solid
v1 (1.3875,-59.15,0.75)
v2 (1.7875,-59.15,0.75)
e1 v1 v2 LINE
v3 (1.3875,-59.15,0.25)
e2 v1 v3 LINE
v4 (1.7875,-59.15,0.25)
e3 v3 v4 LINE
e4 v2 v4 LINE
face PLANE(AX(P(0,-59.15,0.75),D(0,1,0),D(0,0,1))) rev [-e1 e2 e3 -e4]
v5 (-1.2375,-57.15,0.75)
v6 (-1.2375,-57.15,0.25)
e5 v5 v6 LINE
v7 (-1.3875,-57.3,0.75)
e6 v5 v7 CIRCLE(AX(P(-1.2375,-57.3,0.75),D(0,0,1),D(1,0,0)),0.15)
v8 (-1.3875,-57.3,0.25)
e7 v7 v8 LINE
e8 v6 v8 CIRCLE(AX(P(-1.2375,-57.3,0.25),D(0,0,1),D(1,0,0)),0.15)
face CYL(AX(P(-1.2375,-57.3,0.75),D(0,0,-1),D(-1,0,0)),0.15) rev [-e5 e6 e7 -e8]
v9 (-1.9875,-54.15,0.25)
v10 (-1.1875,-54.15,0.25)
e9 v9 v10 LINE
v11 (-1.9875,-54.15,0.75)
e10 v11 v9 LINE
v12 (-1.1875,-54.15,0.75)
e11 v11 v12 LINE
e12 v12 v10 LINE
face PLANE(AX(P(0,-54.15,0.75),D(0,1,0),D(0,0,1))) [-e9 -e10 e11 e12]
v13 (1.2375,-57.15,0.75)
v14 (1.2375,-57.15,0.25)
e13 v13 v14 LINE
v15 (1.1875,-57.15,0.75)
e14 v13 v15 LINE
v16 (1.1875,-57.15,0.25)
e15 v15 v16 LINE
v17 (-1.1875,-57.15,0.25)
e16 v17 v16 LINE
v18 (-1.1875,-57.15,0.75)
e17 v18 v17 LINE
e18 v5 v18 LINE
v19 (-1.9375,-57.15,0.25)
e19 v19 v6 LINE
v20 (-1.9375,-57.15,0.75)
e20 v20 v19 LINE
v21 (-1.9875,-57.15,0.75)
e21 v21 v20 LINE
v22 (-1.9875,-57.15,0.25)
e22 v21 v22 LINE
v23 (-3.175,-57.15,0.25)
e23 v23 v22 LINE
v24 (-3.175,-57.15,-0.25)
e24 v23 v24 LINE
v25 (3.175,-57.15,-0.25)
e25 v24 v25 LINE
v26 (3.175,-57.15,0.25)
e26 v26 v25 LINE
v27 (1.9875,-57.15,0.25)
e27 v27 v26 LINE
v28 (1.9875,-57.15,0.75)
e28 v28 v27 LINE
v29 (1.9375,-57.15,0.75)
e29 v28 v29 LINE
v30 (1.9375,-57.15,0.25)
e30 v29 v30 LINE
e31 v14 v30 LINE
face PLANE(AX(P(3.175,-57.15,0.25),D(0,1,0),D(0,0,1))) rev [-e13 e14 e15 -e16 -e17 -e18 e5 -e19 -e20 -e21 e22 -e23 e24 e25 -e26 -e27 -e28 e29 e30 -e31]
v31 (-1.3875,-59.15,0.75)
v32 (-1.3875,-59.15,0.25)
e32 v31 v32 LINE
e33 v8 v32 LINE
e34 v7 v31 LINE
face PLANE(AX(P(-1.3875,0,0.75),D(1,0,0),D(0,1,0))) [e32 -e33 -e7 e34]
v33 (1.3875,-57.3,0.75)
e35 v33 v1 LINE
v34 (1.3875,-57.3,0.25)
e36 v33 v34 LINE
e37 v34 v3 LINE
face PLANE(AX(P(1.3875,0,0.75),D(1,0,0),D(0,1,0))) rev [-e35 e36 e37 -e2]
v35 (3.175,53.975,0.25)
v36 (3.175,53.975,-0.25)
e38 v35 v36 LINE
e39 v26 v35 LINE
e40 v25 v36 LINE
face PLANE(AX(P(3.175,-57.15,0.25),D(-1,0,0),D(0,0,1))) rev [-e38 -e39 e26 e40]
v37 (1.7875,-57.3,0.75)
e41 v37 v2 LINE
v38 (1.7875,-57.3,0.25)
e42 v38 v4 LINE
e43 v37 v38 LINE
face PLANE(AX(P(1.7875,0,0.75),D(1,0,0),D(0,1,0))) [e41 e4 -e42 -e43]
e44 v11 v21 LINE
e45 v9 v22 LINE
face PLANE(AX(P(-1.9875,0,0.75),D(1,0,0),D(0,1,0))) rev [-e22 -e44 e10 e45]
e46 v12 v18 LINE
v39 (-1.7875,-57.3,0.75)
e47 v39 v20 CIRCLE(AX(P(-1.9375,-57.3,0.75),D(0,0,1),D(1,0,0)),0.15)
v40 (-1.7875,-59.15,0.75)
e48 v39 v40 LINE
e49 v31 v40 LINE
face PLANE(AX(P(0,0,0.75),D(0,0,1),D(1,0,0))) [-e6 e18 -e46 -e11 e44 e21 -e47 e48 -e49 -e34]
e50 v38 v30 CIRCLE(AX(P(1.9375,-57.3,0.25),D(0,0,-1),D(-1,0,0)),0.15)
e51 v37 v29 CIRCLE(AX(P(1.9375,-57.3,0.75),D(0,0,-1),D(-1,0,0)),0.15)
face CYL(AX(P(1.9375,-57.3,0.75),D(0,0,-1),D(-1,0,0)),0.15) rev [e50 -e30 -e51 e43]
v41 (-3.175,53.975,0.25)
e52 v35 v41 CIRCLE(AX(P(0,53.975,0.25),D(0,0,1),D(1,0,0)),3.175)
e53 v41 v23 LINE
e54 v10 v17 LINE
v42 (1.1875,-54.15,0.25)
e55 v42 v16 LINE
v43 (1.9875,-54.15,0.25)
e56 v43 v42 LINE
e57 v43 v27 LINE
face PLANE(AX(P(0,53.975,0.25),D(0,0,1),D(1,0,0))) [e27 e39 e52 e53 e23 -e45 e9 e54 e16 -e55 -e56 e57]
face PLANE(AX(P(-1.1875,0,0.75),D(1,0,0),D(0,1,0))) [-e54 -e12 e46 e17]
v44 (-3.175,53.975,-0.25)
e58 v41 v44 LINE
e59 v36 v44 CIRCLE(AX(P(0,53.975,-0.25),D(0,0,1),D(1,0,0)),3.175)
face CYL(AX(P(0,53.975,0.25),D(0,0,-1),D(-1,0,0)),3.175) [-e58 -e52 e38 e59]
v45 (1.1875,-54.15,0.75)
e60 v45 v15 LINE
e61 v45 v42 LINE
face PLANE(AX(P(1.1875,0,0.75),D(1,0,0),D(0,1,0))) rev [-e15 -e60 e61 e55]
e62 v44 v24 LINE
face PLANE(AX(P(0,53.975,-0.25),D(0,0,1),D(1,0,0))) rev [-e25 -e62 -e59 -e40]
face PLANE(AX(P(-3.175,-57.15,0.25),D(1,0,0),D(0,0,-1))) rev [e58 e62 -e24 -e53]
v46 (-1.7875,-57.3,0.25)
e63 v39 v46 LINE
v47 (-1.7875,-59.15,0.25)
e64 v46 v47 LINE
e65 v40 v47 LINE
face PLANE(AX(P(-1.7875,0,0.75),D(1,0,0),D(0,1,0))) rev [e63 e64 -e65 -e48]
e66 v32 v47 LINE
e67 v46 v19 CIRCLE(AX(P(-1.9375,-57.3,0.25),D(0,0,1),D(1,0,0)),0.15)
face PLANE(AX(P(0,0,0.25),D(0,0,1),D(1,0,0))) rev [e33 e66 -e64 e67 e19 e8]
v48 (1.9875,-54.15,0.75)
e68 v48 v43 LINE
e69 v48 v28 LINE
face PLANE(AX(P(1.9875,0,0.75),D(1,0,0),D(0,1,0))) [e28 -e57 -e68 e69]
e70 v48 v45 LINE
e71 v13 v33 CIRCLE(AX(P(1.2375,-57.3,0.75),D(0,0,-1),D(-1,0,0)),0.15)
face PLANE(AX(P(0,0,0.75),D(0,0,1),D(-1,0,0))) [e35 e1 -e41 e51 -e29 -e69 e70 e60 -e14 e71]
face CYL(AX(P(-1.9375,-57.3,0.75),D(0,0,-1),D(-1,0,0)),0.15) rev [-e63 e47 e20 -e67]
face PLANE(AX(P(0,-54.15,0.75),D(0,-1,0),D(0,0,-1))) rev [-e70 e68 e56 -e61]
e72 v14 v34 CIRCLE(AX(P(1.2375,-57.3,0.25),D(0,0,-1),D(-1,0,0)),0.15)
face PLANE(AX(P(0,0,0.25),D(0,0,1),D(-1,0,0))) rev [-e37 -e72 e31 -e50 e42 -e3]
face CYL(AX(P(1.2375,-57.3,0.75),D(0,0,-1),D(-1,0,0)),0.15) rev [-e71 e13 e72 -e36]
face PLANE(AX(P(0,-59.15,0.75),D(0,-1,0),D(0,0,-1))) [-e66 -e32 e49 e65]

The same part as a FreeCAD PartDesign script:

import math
import FreeCAD as App
import Part
import Sketcher

V = App.Vector
Q = App.Units.Quantity

doc = App.newDocument("Part")
body = doc.addObject("PartDesign::Body", "Body")

sketch1 = doc.addObject("Sketcher::SketchObject", "Sketch")
body.addObject(sketch1)
sketch1.AttachmentSupport = (doc.XY_Plane, [""])
sketch1.MapMode = "FlatFace"
sketch1.addGeometry([
    Part.LineSegment(V(-3.2, -57.1, 0), V(3.2, -57.1, 0)),
    Part.LineSegment(V(3.2, -57.1, 0), V(3.2, 54, 0)),
    Part.ArcOfCircle(Part.Circle(V(0, 54, 0), V(0, 0, 1), 3.2), math.radians(0), math.radians(180)),
    Part.LineSegment(V(-3.2, 54, 0), V(-3.2, -57.1, 0)),
], False)
sketch1.addConstraint([
    Sketcher.Constraint("Coincident", 0, 2, 1, 1),
    Sketcher.Constraint("Tangent", 1, 2, 2, 1),
    Sketcher.Constraint("Tangent", 2, 2, 3, 1),
    Sketcher.Constraint("Coincident", 3, 2, 0, 1),
    Sketcher.Constraint("Horizontal", 0),
    Sketcher.Constraint("Vertical", 1),
    Sketcher.Constraint("Vertical", 3),
    Sketcher.Constraint("PointOnObject", 2, 3, -2),
    Sketcher.Constraint("Radius", 2, Q("3.175 mm")),
    Sketcher.Constraint("DistanceY", 1, 1, 1, 2, Q("111.125 mm")),
    Sketcher.Constraint("DistanceY", 0, 2, -1, 1, Q("57.15 mm")),
])
pad1 = doc.addObject("PartDesign::Pad", "Pad")
body.addObject(pad1)
pad1.Profile = sketch1
pad1.Length = 0.5
pad1.Midplane = True

sketch2 = doc.addObject("Sketcher::SketchObject", "Sketch001")
body.addObject(sketch2)
sketch2.AttachmentSupport = (doc.XY_Plane, [""])
sketch2.MapMode = "FlatFace"
sketch2.AttachmentOffset = App.Placement(V(0, 0, 0.25), App.Rotation())
sketch2.addGeometry([
    Part.LineSegment(V(-1.19, -54.15, 0), V(-1.99, -54.15, 0)),
    Part.LineSegment(V(-1.99, -54.15, 0), V(-1.99, -57.15, 0)),
    Part.LineSegment(V(-1.99, -57.15, 0), V(-1.94, -57.15, 0)),
    Part.ArcOfCircle(Part.Circle(V(-1.94, -57.3, 0), V(0, 0, 1), 0.15), math.radians(0), math.radians(90)),
    Part.LineSegment(V(-1.79, -57.3, 0), V(-1.79, -59.15, 0)),
    Part.LineSegment(V(-1.79, -59.15, 0), V(-1.39, -59.15, 0)),
    Part.LineSegment(V(-1.39, -59.15, 0), V(-1.39, -57.3, 0)),
    Part.ArcOfCircle(Part.Circle(V(-1.24, -57.3, 0), V(0, 0, 1), 0.15), math.radians(90), math.radians(180)),
    Part.LineSegment(V(-1.24, -57.15, 0), V(-1.19, -57.15, 0)),
    Part.LineSegment(V(-1.19, -57.15, 0), V(-1.19, -54.15, 0)),
], False)
sketch2.addConstraint([
    Sketcher.Constraint("Coincident", 0, 2, 1, 1),
    Sketcher.Constraint("Coincident", 1, 2, 2, 1),
    Sketcher.Constraint("Tangent", 2, 2, 3, 2),
    Sketcher.Constraint("Tangent", 3, 1, 4, 1),
    Sketcher.Constraint("Coincident", 4, 2, 5, 1),
    Sketcher.Constraint("Coincident", 5, 2, 6, 1),
    Sketcher.Constraint("Tangent", 6, 2, 7, 2),
    Sketcher.Constraint("Tangent", 7, 1, 8, 1),
    Sketcher.Constraint("Coincident", 8, 2, 9, 1),
    Sketcher.Constraint("Coincident", 9, 2, 0, 1),
    Sketcher.Constraint("Horizontal", 0),
    Sketcher.Constraint("Vertical", 1),
    Sketcher.Constraint("Horizontal", 2),
    Sketcher.Constraint("Vertical", 4),
    Sketcher.Constraint("Horizontal", 5),
    Sketcher.Constraint("Vertical", 6),
    Sketcher.Constraint("Horizontal", 8),
    Sketcher.Constraint("Vertical", 9),
    Sketcher.Constraint("Equal", 3, 7),
    Sketcher.Constraint("Horizontal", 3, 3, 7, 3),
    Sketcher.Constraint("Equal", 2, 8),
    Sketcher.Constraint("DistanceY", 1, 2, 1, 1, Q("3 mm")),
    Sketcher.Constraint("Radius", 3, Q("0.15 mm")),
    Sketcher.Constraint("DistanceX", 0, 2, 0, 1, Q("0.8 mm")),
    Sketcher.Constraint("DistanceX", 5, 1, 5, 2, Q("0.4 mm")),
    Sketcher.Constraint("DistanceY", 4, 2, 2, 2, Q("2 mm")),
    Sketcher.Constraint("DistanceY", 3, 3, -1, 1, Q("57.3 mm")),
    Sketcher.Constraint("DistanceX", 3, 3, -1, 1, Q("1.9375 mm")),
])
pad2 = doc.addObject("PartDesign::Pad", "Pad001")
body.addObject(pad2)
pad2.Profile = sketch2
pad2.Length = 0.5
doc.recompute()

mirrored = doc.addObject("PartDesign::Mirrored", "Mirrored")
body.addObject(mirrored)
mirrored.Originals = [pad2]
mirrored.MirrorPlane = (doc.YZ_Plane, [""])
body.Tip = mirrored

doc.recompute()
